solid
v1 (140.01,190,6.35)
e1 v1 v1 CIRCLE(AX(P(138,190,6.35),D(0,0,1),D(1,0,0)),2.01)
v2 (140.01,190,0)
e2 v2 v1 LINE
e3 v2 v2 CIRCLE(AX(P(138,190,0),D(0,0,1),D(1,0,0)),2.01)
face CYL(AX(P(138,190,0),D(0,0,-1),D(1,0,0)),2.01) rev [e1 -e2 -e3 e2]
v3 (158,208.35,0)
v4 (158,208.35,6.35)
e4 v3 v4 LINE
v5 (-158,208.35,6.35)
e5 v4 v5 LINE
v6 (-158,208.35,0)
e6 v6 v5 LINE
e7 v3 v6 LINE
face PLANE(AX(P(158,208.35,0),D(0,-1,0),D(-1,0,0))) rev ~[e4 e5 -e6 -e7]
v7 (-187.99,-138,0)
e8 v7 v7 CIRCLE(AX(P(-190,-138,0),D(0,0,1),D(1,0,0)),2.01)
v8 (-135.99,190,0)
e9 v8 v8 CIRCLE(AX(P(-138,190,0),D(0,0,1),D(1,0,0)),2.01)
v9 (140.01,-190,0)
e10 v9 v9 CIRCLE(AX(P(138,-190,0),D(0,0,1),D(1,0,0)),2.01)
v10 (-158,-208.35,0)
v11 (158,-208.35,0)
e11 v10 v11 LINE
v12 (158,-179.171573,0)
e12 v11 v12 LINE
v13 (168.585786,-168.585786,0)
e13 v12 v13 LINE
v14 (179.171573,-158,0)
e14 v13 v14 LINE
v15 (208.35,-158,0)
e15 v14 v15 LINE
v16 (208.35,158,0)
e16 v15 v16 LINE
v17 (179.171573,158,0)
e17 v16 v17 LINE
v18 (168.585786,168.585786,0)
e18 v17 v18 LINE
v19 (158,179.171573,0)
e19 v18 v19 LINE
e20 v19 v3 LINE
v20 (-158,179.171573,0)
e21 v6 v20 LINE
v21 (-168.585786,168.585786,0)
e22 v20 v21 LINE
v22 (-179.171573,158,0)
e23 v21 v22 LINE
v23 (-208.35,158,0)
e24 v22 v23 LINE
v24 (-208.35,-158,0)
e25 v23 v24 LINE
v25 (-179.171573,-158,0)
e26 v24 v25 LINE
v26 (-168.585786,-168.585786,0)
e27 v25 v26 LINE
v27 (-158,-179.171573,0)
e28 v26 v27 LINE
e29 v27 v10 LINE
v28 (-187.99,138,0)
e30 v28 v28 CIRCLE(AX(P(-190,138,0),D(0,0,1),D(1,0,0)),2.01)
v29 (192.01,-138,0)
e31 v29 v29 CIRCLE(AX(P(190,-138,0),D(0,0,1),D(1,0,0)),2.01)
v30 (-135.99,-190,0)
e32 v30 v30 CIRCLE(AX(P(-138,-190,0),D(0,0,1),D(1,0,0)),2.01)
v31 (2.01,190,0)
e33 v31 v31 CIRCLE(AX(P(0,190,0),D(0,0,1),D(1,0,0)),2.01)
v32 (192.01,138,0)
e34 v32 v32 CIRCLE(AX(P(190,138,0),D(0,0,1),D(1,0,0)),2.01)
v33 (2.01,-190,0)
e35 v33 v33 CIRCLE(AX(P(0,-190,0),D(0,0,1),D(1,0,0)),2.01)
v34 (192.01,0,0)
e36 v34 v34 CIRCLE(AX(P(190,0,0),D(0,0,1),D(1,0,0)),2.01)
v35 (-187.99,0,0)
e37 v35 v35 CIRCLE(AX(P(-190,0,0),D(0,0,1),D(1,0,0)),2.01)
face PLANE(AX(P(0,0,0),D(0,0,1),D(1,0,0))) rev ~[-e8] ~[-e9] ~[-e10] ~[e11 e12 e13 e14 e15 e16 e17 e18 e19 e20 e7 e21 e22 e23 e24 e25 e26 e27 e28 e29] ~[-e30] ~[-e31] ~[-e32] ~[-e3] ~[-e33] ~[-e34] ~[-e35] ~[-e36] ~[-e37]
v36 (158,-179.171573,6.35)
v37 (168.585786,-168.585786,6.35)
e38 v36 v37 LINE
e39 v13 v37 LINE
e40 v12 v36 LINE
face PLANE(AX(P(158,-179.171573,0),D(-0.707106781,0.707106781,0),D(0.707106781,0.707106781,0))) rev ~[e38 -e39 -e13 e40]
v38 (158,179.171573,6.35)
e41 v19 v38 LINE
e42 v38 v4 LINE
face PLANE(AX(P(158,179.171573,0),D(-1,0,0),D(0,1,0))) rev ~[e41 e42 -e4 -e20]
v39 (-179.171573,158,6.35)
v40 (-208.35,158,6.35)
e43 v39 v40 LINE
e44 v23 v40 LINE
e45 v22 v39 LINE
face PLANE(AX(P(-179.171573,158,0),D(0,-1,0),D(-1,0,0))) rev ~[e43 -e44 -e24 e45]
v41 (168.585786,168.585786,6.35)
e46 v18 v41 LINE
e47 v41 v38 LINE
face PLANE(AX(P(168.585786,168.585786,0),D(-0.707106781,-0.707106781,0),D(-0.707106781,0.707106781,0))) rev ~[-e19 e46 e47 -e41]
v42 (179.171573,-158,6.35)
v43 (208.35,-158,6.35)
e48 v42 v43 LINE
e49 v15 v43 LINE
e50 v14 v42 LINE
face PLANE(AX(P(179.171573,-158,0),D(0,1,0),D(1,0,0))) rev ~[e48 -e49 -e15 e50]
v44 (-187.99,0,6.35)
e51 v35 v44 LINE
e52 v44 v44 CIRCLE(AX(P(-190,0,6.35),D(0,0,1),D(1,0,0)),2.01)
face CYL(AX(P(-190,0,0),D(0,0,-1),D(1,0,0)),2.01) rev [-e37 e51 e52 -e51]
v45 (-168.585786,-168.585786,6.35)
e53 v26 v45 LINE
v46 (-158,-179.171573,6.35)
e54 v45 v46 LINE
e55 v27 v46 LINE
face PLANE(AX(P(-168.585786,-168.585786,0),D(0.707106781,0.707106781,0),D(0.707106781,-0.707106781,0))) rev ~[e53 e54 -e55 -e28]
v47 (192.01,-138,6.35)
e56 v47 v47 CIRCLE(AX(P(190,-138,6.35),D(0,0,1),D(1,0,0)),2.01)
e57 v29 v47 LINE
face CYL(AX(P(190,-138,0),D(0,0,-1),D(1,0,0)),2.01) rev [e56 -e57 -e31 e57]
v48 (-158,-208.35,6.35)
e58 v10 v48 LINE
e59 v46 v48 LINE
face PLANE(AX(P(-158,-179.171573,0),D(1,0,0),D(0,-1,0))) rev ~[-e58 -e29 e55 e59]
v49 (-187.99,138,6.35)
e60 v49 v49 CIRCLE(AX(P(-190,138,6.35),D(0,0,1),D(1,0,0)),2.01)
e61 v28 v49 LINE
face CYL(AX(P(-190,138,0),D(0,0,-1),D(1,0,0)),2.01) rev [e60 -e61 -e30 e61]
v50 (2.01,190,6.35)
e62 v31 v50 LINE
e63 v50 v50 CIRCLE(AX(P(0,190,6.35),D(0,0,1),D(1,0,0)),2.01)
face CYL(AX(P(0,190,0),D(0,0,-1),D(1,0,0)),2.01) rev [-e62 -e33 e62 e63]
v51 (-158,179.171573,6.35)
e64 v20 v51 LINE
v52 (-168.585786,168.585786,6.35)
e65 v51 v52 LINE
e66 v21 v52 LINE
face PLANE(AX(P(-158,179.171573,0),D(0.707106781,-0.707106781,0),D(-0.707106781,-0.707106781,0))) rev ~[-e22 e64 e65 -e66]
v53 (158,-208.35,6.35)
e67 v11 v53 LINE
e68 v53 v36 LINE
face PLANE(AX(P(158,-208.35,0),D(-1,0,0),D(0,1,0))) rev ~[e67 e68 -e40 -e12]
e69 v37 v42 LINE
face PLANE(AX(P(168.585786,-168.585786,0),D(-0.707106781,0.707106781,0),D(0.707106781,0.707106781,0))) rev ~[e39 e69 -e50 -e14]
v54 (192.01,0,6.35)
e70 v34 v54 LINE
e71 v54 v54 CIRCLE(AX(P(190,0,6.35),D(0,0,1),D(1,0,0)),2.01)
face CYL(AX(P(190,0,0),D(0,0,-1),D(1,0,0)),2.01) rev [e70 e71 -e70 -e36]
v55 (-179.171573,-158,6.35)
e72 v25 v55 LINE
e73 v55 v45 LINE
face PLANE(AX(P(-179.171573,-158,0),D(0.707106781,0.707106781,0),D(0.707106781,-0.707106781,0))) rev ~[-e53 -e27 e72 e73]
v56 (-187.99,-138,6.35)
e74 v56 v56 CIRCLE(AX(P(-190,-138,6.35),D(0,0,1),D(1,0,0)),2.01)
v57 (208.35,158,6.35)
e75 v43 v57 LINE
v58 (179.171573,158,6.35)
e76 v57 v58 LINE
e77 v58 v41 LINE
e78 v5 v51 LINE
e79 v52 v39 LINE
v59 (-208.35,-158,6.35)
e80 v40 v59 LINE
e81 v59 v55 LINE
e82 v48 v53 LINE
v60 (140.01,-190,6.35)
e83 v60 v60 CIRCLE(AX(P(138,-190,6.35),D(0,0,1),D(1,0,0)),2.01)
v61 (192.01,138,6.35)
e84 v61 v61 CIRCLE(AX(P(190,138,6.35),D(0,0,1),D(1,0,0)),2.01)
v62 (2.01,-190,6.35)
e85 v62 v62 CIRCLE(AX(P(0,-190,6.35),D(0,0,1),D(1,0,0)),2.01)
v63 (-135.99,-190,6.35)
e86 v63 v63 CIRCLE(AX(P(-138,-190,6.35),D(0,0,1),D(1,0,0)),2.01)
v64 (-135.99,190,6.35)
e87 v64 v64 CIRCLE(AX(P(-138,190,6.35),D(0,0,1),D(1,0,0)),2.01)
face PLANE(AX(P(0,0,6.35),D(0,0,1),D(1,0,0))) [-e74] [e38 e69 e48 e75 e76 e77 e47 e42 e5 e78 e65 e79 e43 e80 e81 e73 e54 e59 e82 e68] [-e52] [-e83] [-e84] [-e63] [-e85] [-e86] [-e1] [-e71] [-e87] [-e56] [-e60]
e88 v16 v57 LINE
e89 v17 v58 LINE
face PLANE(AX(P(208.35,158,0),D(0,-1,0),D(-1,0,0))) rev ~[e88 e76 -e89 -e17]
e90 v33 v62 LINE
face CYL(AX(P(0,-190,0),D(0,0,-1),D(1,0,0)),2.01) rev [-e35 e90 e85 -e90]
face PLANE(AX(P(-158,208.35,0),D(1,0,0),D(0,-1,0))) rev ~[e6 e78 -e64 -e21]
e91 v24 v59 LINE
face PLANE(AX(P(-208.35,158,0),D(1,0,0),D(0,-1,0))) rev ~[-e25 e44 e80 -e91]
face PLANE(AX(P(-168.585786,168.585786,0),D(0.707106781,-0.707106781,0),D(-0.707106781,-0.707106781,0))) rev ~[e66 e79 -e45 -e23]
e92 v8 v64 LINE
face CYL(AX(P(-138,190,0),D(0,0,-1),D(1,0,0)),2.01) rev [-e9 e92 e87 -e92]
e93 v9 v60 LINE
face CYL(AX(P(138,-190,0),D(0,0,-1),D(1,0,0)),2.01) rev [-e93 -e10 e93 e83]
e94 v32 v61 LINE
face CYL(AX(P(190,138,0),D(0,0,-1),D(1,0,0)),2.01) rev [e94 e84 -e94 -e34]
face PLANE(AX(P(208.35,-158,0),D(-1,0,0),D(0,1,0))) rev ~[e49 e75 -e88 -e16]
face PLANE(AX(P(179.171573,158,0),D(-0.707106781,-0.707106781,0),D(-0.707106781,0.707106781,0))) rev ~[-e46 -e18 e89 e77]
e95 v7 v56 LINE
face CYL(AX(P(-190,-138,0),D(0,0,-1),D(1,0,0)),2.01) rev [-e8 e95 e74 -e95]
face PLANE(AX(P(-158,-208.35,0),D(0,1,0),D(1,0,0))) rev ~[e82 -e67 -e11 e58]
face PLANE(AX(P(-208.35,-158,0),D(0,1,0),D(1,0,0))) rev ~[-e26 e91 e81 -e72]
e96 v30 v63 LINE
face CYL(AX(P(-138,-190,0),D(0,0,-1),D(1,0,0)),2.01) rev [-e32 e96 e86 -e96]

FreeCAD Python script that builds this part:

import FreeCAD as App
import Part
import Sketcher

V = App.Vector
Q = App.Units.Quantity


def add_polygon(sketch, points):
    """Adds a closed chain of lines whose ends are joined by coincident constraints."""
    first, n = sketch.GeometryCount, len(points)
    for a, b in zip(points, points[1:] + points[:1]):
        sketch.addGeometry(Part.LineSegment(App.Vector(*a, 0), App.Vector(*b, 0)), False)
    for i in range(n):
        sketch.addConstraint(Sketcher.Constraint("Coincident", first + i, 2, first + (i + 1) % n, 1))

doc = App.newDocument("Part")
body = doc.addObject("PartDesign::Body", "Body")

sketch1 = doc.addObject("Sketcher::SketchObject", "Sketch")
body.addObject(sketch1)
sketch1.AttachmentSupport = (doc.XY_Plane, [""])
sketch1.MapMode = "FlatFace"
add_polygon(sketch1, [(-158, 208.35), (-158, 179.171573), (-168.585786, 168.585786), (-179.171573, 158), (-208.35, 158), (-208.35, -158), (-179.171573, -158), (-168.585786, -168.585786), (-158, -179.171573), (-158, -208.35), (158, -208.35), (158, -179.171573), (168.585786, -168.585786), (179.171573, -158), (208.35, -158), (208.35, 158), (179.171573, 158), (168.585786, 168.585786), (158, 179.171573), (158, 208.35)])
sketch1.addGeometry(Part.Circle(V(-138, -190, 0), V(0, 0, 1), 2.01), False)
sketch1.addGeometry(Part.Circle(V(-190, -138, 0), V(0, 0, 1), 2.01), False)
sketch1.addGeometry(Part.Circle(V(0, -190, 0), V(0, 0, 1), 2.01), False)
sketch1.addGeometry(Part.Circle(V(-190, 0, 0), V(0, 0, 1), 2.01), False)
sketch1.addGeometry(Part.Circle(V(138, -190, 0), V(0, 0, 1), 2.01), False)
sketch1.addGeometry(Part.Circle(V(190, -138, 0), V(0, 0, 1), 2.01), False)
sketch1.addGeometry(Part.Circle(V(190, 0, 0), V(0, 0, 1), 2.01), False)
sketch1.addGeometry(Part.Circle(V(-190, 138, 0), V(0, 0, 1), 2.01), False)
sketch1.addGeometry(Part.Circle(V(-138, 190, 0), V(0, 0, 1), 2.01), False)
sketch1.addGeometry(Part.Circle(V(0, 190, 0), V(0, 0, 1), 2.01), False)
sketch1.addGeometry(Part.Circle(V(190, 138, 0), V(0, 0, 1), 2.01), False)
sketch1.addGeometry(Part.Circle(V(138, 190, 0), V(0, 0, 1), 2.01), False)
sketch1.addConstraint([
    Sketcher.Constraint("Vertical", 0),
    Sketcher.Constraint("Horizontal", 3),
    Sketcher.Constraint("Vertical", 4),
    Sketcher.Constraint("Horizontal", 5),
    Sketcher.Constraint("Vertical", 8),
    Sketcher.Constraint("Horizontal", 9),
    Sketcher.Constraint("Vertical", 10),
    Sketcher.Constraint("Horizontal", 13),
    Sketcher.Constraint("Vertical", 14),
    Sketcher.Constraint("Horizontal", 15),
    Sketcher.Constraint("Vertical", 18),
    Sketcher.Constraint("Horizontal", 19),
    Sketcher.Constraint("Equal", 20, 21),
    Sketcher.Constraint("Equal", 21, 22),
    Sketcher.Constraint("Equal", 22, 23),
    Sketcher.Constraint("Equal", 23, 24),
    Sketcher.Constraint("Equal", 24, 25),
    Sketcher.Constraint("Equal", 25, 26),
    Sketcher.Constraint("Equal", 26, 27),
    Sketcher.Constraint("Equal", 27, 28),
    Sketcher.Constraint("Equal", 28, 29),
    Sketcher.Constraint("Equal", 29, 30),
    Sketcher.Constraint("Equal", 30, 31),
    Sketcher.Constraint("Symmetric", 23, 3, 26, 3, -1, 1),
    Sketcher.Constraint("Symmetric", 25, 3, 27, 3, -1, 1),
    Sketcher.Constraint("Symmetric", 24, 3, 28, 3, -1, 1),
    Sketcher.Constraint("Symmetric", 22, 3, 29, 3, -1, 1),
    Sketcher.Constraint("Symmetric", 21, 3, 30, 3, -1, 1),
    Sketcher.Constraint("Symmetric", 20, 3, 31, 3, -1, 1),
    Sketcher.Constraint("Symmetric", 0, 2, 10, 2, -1, 1),
    Sketcher.Constraint("Symmetric", 1, 2, 11, 2, -1, 1),
    Sketcher.Constraint("Symmetric", 2, 2, 12, 2, -1, 1),
    Sketcher.Constraint("Symmetric", 4, 2, 14, 2, -1, 1),
    Sketcher.Constraint("Symmetric", 6, 2, 16, 2, -1, 1),
    Sketcher.Constraint("Symmetric", 7, 2, 17, 2, -1, 1),
    Sketcher.Constraint("Symmetric", 20, 3, 24, 3, -2),
    Sketcher.Constraint("Symmetric", 21, 3, 25, 3, -2),
    Sketcher.Constraint("Symmetric", 7, 2, 10, 2, -2),
    Sketcher.Constraint("Symmetric", 6, 2, 11, 2, -2),
    Sketcher.Constraint("Symmetric", 5, 2, 12, 2, -2),
    Sketcher.Constraint("PointOnObject", 22, 3, -2),
    Sketcher.Constraint("PointOnObject", 23, 3, -1),
    Sketcher.Constraint("Parallel", 1, 2),
    Sketcher.Constraint("Perpendicular", 2, 6),
    Sketcher.Constraint("Perpendicular", 12, 16),
    Sketcher.Constraint("Horizontal", 20, 3, 22, 3),
    Sketcher.Constraint("Vertical", 21, 3, 23, 3),
    Sketcher.Constraint("Equal", 15, 0),
    Sketcher.Constraint("Equal", 19, 4),
    Sketcher.Constraint("Equal", 0, 8),
    Sketcher.Constraint("Equal", 1, 2),
    Sketcher.Constraint("Diameter", 20, Q("4.02 mm")),
    Sketcher.Constraint("DistanceX", 9, 1, 9, 2, Q("316 mm")),
    Sketcher.Constraint("DistanceX", 20, 3, -1, 1, Q("138 mm")),
    Sketcher.Constraint("DistanceY", 20, 3, -1, 1, Q("190 mm")),
    Sketcher.Constraint("DistanceX", 21, 3, -1, 1, Q("190 mm")),
    Sketcher.Constraint("DistanceY", 21, 3, -1, 1, Q("138 mm")),
    Sketcher.Constraint("DistanceX", 3, 2, -1, 1, Q("208.35 mm")),
    Sketcher.Constraint("DistanceX", 3, 2, 3, 1, Q("29.178427 mm")),
])
pad1 = doc.addObject("PartDesign::Pad", "Pad")
body.addObject(pad1)
pad1.Profile = sketch1
pad1.Length = 6.35

doc.recompute()
